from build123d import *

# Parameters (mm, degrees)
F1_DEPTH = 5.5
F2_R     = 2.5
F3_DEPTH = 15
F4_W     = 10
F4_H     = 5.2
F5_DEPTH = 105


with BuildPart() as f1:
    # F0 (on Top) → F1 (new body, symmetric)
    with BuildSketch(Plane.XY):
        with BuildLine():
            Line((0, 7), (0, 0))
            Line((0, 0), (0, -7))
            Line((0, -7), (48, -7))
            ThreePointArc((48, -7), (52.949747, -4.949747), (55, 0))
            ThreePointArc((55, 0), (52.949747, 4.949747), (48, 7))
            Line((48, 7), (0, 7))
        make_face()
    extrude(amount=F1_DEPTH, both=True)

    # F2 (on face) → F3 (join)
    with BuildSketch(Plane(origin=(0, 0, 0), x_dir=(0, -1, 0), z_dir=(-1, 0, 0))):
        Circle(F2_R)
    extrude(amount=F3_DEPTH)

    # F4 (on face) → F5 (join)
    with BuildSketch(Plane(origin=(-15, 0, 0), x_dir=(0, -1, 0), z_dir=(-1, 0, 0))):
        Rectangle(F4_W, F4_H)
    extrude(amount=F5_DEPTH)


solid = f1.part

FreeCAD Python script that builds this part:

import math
import FreeCAD as App
import Part
import Sketcher
from FreeCAD import Vector
Q = App.Units.Quantity


def add_polygon(sketch, points):
    """Adds a closed chain of lines whose ends are joined by coincident constraints."""
    first, n = sketch.GeometryCount, len(points)
    for a, b in zip(points, points[1:] + points[:1]):
        sketch.addGeometry(Part.LineSegment(App.Vector(*a, 0), App.Vector(*b, 0)), False)
    for i in range(n):
        sketch.addConstraint(Sketcher.Constraint("Coincident", first + i, 2, first + (i + 1) % n, 1))

doc = App.newDocument("Part")
params = doc.addObject("Spreadsheet::Sheet", "Params")
for row, (alias, value) in enumerate([
    ("sketch1_radius", "7.000002 mm"),
    ("sketch1_width", "48 mm"),
    ("pad1_length", "11 mm"),
    ("sketch2_diameter", "5 mm"),
    ("pad2_length", "15 mm"),
    ("sketch3_width", "10 mm"),
    ("sketch3_height", "5.2 mm"),
    ("pad3_length", "105 mm"),
], start=1):
    params.set(f"A{row}", alias)
    params.set(f"B{row}", "=" + value)
    params.setAlias(f"B{row}", alias)

body = doc.addObject("PartDesign::Body", "Body")

sketch1 = doc.addObject("Sketcher::SketchObject", "Sketch")
body.addObject(sketch1)
sketch1.AttachmentSupport = (doc.XY_Plane, [""])
sketch1.MapMode = "FlatFace"
sketch1.addGeometry(Part.LineSegment(Vector(0, 7, 0), Vector(0, -7, 0)), False)
sketch1.addGeometry(Part.LineSegment(Vector(0, -7, 0), Vector(48, -7, 0)), False)
sketch1.addGeometry(Part.ArcOfCircle(Part.Circle(Vector(48, 0, 0), Vector(0, 0, 1), 7), math.radians(-90), math.radians(0)), False)
sketch1.addGeometry(Part.ArcOfCircle(Part.Circle(Vector(48, 0, 0), Vector(0, 0, 1), 7), math.radians(0), math.radians(90)), False)
sketch1.addGeometry(Part.LineSegment(Vector(48, 7, 0), Vector(0, 7, 0)), False)
sketch1.addConstraint(Sketcher.Constraint("Coincident", 0, 2, 1, 1))
sketch1.addConstraint(Sketcher.Constraint("Tangent", 1, 2, 2, 1))
sketch1.addConstraint(Sketcher.Constraint("Tangent", 2, 2, 3, 1))
sketch1.addConstraint(Sketcher.Constraint("Tangent", 3, 2, 4, 1))
sketch1.addConstraint(Sketcher.Constraint("Coincident", 4, 2, 0, 1))
sketch1.addConstraint(Sketcher.Constraint("Vertical", 0))
sketch1.addConstraint(Sketcher.Constraint("Horizontal", 1))
sketch1.addConstraint(Sketcher.Constraint("Horizontal", 4))
sketch1.addConstraint(Sketcher.Constraint("Equal", 2, 3))
sketch1.addConstraint(Sketcher.Constraint("Symmetric", 0, 2, 4, 2, -1, 1))
sketch1.addConstraint(Sketcher.Constraint("PointOnObject", 2, 2, -1))
sketch1.addConstraint(Sketcher.Constraint("Radius", 2, Q("7.000002 mm")))
sketch1.addConstraint(Sketcher.Constraint("DistanceX", 1, 1, 1, 2, Q("48 mm")))
sketch1.setExpression("Constraints[11]", "Params.sketch1_radius")
sketch1.setExpression("Constraints[12]", "Params.sketch1_width")
pad1 = doc.addObject("PartDesign::Pad", "Pad")
body.addObject(pad1)
pad1.Profile = sketch1
pad1.setExpression("Length", "Params.pad1_length")
pad1.Midplane = True

sketch2 = doc.addObject("Sketcher::SketchObject", "Sketch001")
body.addObject(sketch2)
sketch2.AttachmentSupport = (doc.YZ_Plane, [""])
sketch2.MapMode = "FlatFace"
sketch2.addGeometry(Part.Circle(Vector(0, 0, 0), Vector(0, 0, 1), 2.5), False)
sketch2.addConstraint(Sketcher.Constraint("Coincident", 0, 3, -1, 1))
sketch2.addConstraint(Sketcher.Constraint("Diameter", 0, Q("5 mm")))
sketch2.setExpression("Constraints[1]", "Params.sketch2_diameter")
pad2 = doc.addObject("PartDesign::Pad", "Pad001")
body.addObject(pad2)
pad2.Profile = sketch2
pad2.setExpression("Length", "Params.pad2_length")
pad2.Reversed = True

sketch3 = doc.addObject("Sketcher::SketchObject", "Sketch002")
body.addObject(sketch3)
sketch3.AttachmentSupport = (doc.YZ_Plane, [""])
sketch3.MapMode = "FlatFace"
sketch3.AttachmentOffset = App.Placement(Vector(0, 0, -15), App.Rotation())
add_polygon(sketch3, [(5, 3), (5, -3), (-5, -3), (-5, 3)])
sketch3.addConstraint(Sketcher.Constraint("Vertical", 0))
sketch3.addConstraint(Sketcher.Constraint("Horizontal", 1))
sketch3.addConstraint(Sketcher.Constraint("Vertical", 2))
sketch3.addConstraint(Sketcher.Constraint("Horizontal", 3))
sketch3.addConstraint(Sketcher.Constraint("Symmetric", 0, 2, 2, 2, -1, 1))
sketch3.addConstraint(Sketcher.Constraint("DistanceX", 1, 2, 1, 1, Q("10 mm")))
sketch3.addConstraint(Sketcher.Constraint("DistanceY", 0, 2, 0, 1, Q("5.2 mm")))
sketch3.setExpression("Constraints[9]", "Params.sketch3_width")
sketch3.setExpression("Constraints[10]", "Params.sketch3_height")
pad3 = doc.addObject("PartDesign::Pad", "Pad002")
body.addObject(pad3)
pad3.Profile = sketch3
pad3.setExpression("Length", "Params.pad3_length")
pad3.Reversed = True

doc.recompute()
